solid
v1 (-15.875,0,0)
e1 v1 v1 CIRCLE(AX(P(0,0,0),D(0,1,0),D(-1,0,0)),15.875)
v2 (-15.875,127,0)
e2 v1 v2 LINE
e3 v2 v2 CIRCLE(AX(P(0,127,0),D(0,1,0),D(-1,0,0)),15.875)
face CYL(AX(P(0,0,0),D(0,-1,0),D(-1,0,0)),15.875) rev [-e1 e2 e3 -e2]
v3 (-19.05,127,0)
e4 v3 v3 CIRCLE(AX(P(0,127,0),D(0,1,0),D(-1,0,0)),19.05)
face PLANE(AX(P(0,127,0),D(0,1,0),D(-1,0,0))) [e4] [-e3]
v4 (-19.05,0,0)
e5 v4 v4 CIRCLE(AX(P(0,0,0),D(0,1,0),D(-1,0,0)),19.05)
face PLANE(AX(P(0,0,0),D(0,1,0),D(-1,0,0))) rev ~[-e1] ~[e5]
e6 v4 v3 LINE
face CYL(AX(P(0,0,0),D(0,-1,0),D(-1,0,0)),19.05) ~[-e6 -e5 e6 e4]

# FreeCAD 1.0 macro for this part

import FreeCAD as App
import Part
import Sketcher
from FreeCAD import Vector
Q = App.Units.Quantity

doc = App.newDocument("Part")
body = doc.addObject("PartDesign::Body", "Body")

sketch1 = doc.addObject("Sketcher::SketchObject", "Sketch")
body.addObject(sketch1)
sketch1.AttachmentSupport = (doc.XZ_Plane, [""])
sketch1.MapMode = "FlatFace"
sketch1.addGeometry(Part.Circle(Vector(0, 0, 0), Vector(0, 0, 1), 19.05), False)
sketch1.addGeometry(Part.Circle(Vector(0, 0, 0), Vector(0, 0, 1), 15.875), False)
sketch1.addConstraint(Sketcher.Constraint("Coincident", 0, 3, -1, 1))
sketch1.addConstraint(Sketcher.Constraint("Coincident", 1, 3, -1, 1))
sketch1.addConstraint(Sketcher.Constraint("Diameter", 0, Q("1.5 in")))
sketch1.addConstraint(Sketcher.Constraint("Diameter", 1, Q("1.25 in")))
pad1 = doc.addObject("PartDesign::Pad", "Pad")
body.addObject(pad1)
pad1.Profile = sketch1
pad1.Length = Q("5 in")
pad1.Reversed = True

doc.recompute()
